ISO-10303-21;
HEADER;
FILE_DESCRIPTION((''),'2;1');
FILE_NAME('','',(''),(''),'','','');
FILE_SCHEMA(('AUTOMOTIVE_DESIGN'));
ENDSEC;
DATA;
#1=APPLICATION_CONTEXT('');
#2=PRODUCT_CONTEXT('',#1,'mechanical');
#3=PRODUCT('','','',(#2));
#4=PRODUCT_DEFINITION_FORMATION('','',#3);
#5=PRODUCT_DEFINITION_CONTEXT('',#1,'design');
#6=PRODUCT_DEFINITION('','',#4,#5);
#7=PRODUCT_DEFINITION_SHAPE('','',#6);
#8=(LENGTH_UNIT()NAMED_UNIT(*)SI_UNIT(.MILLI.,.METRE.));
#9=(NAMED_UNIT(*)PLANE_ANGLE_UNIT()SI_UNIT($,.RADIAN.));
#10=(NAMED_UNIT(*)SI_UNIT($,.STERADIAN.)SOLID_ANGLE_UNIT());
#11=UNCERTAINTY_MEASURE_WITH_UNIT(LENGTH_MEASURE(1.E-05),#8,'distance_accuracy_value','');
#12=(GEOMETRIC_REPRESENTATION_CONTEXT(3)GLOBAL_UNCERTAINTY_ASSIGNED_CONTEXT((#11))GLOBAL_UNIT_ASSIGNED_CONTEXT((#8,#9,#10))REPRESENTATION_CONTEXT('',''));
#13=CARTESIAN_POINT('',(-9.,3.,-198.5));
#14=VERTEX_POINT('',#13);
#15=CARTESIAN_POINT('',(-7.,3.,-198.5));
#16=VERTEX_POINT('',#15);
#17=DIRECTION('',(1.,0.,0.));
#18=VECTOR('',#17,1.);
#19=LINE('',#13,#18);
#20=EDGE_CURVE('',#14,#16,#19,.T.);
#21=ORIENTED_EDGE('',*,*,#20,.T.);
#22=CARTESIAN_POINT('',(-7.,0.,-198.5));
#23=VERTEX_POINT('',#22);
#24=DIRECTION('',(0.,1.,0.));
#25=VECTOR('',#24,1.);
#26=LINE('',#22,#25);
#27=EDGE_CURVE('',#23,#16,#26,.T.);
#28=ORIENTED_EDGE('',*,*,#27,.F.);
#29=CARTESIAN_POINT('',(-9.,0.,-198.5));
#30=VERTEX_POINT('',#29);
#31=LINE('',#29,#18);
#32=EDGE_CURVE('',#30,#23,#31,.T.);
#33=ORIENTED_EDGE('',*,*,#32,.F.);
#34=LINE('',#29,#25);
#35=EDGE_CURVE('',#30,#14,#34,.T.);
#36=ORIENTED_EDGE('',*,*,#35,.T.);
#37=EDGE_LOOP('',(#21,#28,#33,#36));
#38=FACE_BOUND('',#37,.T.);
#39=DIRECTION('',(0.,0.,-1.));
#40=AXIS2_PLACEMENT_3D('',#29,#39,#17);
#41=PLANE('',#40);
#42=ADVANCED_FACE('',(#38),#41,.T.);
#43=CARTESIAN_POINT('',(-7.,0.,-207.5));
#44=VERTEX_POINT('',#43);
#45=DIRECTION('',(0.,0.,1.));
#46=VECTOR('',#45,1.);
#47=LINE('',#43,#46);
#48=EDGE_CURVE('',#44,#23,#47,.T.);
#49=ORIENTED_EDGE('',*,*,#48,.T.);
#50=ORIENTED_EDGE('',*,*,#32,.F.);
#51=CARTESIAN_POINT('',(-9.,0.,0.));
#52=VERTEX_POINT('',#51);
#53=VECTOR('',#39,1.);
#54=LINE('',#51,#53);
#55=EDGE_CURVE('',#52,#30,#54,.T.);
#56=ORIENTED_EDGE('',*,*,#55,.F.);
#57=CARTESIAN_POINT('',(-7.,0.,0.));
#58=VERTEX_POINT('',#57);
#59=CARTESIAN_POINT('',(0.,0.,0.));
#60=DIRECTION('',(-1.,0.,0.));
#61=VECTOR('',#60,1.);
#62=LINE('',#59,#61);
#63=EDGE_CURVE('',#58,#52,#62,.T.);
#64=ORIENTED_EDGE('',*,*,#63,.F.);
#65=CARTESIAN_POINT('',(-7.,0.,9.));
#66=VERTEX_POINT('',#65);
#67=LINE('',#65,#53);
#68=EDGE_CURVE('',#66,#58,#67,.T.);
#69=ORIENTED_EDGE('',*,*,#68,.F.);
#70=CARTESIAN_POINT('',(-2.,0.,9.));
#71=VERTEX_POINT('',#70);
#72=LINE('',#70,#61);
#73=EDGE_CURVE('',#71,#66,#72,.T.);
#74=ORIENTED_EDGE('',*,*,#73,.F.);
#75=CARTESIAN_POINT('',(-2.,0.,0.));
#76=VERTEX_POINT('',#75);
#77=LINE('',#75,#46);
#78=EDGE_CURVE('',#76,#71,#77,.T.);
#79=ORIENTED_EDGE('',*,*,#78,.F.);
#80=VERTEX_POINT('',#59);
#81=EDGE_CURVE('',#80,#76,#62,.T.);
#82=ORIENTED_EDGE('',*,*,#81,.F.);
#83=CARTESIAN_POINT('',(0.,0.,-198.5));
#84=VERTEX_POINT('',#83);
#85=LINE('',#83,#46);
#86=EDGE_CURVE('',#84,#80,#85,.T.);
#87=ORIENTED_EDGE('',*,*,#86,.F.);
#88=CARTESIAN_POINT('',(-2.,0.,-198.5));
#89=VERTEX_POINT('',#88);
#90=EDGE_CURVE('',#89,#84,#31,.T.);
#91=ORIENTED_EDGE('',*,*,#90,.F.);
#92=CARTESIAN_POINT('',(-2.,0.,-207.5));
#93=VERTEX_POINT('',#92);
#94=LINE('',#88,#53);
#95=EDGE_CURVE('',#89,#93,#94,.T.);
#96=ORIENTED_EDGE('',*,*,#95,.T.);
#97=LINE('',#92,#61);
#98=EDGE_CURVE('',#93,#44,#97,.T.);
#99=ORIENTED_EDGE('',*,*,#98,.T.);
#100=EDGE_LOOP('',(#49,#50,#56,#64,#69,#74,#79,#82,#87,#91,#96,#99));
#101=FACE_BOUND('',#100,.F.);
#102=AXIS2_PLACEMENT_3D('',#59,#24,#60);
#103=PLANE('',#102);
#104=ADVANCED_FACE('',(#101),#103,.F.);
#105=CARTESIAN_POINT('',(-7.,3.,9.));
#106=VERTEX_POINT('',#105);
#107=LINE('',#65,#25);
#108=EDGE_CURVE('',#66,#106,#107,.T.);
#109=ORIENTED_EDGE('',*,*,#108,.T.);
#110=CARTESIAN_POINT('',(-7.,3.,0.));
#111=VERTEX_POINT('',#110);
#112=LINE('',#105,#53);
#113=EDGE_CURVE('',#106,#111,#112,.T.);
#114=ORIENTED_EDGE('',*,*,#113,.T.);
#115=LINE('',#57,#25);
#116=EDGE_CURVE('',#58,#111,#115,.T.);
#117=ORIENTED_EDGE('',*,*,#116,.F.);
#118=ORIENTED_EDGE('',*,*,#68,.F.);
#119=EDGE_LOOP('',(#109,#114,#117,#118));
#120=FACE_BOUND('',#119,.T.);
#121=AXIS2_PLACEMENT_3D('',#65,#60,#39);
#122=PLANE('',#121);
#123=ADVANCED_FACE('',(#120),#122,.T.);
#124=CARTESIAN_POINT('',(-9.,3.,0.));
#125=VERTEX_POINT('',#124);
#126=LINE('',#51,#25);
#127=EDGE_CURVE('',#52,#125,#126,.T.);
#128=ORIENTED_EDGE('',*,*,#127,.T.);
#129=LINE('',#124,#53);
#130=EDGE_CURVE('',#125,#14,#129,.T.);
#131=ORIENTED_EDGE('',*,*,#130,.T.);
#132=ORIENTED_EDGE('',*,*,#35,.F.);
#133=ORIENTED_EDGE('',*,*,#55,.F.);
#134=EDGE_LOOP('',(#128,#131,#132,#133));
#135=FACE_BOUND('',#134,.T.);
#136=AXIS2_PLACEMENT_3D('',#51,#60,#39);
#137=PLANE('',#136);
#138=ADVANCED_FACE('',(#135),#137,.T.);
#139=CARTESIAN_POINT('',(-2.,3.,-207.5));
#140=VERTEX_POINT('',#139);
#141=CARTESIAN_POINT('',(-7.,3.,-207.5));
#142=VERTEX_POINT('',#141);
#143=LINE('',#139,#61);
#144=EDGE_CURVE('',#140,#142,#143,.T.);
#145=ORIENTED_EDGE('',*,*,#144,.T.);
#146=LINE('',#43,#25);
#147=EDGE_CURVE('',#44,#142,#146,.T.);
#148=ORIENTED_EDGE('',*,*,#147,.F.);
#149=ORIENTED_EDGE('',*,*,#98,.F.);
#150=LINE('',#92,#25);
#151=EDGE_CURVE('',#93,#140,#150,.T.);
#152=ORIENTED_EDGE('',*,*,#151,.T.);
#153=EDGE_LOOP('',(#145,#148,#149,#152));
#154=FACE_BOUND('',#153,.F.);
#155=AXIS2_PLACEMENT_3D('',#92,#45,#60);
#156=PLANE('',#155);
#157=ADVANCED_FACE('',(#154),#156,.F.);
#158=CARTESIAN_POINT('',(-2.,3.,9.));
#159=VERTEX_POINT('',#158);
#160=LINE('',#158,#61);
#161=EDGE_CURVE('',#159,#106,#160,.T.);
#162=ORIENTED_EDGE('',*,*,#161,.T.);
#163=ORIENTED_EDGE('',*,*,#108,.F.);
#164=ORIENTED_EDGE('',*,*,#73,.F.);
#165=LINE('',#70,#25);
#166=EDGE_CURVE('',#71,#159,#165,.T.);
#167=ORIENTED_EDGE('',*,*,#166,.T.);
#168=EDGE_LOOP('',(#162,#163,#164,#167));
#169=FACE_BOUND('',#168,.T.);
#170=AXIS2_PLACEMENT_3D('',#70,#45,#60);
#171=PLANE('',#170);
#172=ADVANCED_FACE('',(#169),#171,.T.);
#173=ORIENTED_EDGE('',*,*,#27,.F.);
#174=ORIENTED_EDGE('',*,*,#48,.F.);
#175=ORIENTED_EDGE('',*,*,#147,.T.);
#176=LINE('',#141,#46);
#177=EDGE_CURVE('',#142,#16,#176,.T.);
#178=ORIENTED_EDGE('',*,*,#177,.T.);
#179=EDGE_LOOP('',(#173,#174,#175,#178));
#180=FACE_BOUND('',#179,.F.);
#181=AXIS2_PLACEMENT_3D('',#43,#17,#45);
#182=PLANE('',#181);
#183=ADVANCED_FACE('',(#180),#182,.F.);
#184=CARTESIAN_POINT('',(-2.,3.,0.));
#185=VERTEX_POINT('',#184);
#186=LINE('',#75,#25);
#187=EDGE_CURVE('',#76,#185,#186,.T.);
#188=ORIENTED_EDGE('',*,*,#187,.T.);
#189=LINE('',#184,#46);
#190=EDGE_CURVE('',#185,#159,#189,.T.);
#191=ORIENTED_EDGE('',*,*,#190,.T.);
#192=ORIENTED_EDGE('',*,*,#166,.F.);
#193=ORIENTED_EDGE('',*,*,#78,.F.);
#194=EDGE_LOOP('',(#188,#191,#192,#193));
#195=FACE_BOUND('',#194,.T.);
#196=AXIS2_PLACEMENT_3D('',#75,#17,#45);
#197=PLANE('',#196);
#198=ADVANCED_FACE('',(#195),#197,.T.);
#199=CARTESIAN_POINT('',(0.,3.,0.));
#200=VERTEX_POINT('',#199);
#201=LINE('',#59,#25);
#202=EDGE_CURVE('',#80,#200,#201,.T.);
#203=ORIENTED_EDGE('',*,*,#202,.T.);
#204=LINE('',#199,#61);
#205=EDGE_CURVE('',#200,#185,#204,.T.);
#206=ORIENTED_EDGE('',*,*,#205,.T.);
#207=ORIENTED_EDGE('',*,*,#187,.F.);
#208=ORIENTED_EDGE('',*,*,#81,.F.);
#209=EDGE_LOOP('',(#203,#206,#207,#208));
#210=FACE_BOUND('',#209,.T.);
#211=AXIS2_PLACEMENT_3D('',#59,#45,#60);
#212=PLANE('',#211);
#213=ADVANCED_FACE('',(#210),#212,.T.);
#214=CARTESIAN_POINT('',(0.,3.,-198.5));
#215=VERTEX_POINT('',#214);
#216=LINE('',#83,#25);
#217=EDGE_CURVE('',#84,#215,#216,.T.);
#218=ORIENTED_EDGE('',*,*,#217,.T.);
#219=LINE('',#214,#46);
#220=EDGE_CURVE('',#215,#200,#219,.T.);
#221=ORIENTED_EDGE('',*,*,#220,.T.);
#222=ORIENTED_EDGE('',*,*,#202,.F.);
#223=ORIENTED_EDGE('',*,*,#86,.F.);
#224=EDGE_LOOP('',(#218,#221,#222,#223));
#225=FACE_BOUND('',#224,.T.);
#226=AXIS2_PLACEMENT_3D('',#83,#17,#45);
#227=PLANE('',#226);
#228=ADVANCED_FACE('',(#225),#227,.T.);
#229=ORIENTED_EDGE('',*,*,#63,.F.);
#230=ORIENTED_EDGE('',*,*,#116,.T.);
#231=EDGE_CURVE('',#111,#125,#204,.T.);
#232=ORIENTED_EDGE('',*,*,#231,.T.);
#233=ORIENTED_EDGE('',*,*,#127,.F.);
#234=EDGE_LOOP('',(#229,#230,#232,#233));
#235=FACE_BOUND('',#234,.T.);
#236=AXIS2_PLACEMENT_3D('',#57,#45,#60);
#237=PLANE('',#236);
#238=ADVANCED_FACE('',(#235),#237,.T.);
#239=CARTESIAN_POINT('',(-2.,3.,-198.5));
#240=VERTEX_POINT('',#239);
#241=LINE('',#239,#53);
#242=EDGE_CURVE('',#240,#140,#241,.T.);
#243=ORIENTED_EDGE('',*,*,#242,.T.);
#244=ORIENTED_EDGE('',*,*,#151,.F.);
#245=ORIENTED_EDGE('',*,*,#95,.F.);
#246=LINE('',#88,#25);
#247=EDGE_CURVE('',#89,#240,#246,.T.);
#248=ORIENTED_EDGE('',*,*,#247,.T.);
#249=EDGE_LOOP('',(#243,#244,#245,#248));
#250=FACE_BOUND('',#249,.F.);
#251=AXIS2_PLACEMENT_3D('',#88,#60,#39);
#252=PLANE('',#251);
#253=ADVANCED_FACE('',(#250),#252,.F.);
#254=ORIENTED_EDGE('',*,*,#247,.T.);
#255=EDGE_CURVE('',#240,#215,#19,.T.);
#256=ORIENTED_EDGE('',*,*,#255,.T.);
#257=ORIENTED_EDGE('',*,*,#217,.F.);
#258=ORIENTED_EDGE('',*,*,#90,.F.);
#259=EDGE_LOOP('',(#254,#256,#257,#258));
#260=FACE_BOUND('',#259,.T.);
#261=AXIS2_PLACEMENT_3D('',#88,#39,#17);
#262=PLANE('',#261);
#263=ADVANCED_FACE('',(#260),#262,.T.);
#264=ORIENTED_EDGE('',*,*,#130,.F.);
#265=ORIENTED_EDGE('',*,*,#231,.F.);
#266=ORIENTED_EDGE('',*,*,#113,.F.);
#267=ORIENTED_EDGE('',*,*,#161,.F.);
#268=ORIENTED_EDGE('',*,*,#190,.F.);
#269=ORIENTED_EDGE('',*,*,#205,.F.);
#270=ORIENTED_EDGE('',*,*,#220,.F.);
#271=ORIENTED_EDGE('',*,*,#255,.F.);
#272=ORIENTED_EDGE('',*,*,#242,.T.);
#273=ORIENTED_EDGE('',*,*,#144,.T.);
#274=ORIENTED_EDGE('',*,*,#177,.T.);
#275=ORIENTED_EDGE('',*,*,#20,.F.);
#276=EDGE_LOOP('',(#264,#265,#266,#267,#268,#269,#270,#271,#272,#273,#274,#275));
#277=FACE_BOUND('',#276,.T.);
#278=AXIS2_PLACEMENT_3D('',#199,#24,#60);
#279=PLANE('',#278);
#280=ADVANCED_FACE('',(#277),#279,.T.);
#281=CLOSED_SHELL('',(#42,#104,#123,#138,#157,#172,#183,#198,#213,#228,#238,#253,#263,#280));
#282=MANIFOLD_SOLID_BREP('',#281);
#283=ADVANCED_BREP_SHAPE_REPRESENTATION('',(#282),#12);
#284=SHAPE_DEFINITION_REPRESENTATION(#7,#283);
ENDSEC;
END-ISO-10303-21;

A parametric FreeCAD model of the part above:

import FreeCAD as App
import Part
import Sketcher

V = App.Vector
Q = App.Units.Quantity

doc = App.newDocument("Part")
body = doc.addObject("PartDesign::Body", "Body")

# Sketch on XZ plane
sketch1 = body.newObject("Sketcher::SketchObject", "Sketch")
sketch1.AttachmentSupport = (doc.getObject("XZ_Plane"), [""])
sketch1.MapMode = "FlatFace"
sketch1.addGeometry([
    Part.LineSegment(V(-2, 0, 0), V(0, 0, 0)),  # 0
    Part.LineSegment(V(0, 0, 0), V(0, -198.5, 0)),  # 1
    Part.LineSegment(V(0, -198.5, 0), V(-2, -198.5, 0)),  # 2
    Part.LineSegment(V(-2, -198.5, 0), V(-2, -207.5, 0)),  # 3
    Part.LineSegment(V(-2, -207.5, 0), V(-7, -207.5, 0)),  # 4
    Part.LineSegment(V(-7, -207.5, 0), V(-7, -198.5, 0)),  # 5
    Part.LineSegment(V(-7, -198.5, 0), V(-9, -198.5, 0)),  # 6
    Part.LineSegment(V(-9, -198.5, 0), V(-9, 0, 0)),  # 7
    Part.LineSegment(V(-9, 0, 0), V(-7, 0, 0)),  # 8
    Part.LineSegment(V(-7, 0, 0), V(-7, 9, 0)),  # 9
    Part.LineSegment(V(-7, 9, 0), V(-2, 9, 0)),  # 10
    Part.LineSegment(V(-2, 9, 0), V(-2, 0, 0)),  # 11
], False)
sketch1.addConstraint([
    Sketcher.Constraint("Coincident", 0, 2, 1, 1),
    Sketcher.Constraint("Coincident", 1, 2, 2, 1),
    Sketcher.Constraint("Coincident", 2, 2, 3, 1),
    Sketcher.Constraint("Coincident", 3, 2, 4, 1),
    Sketcher.Constraint("Coincident", 4, 2, 5, 1),
    Sketcher.Constraint("Coincident", 5, 2, 6, 1),
    Sketcher.Constraint("Coincident", 6, 2, 7, 1),
    Sketcher.Constraint("Coincident", 7, 2, 8, 1),
    Sketcher.Constraint("Coincident", 8, 2, 9, 1),
    Sketcher.Constraint("Coincident", 9, 2, 10, 1),
    Sketcher.Constraint("Coincident", 10, 2, 11, 1),
    Sketcher.Constraint("Coincident", 11, 2, 0, 1),
    Sketcher.Constraint("Horizontal", 0),
    Sketcher.Constraint("Vertical", 1),
    Sketcher.Constraint("Horizontal", 2),
    Sketcher.Constraint("Vertical", 3),
    Sketcher.Constraint("Horizontal", 4),
    Sketcher.Constraint("Vertical", 5),
    Sketcher.Constraint("Horizontal", 6),
    Sketcher.Constraint("Vertical", 7),
    Sketcher.Constraint("Horizontal", 8),
    Sketcher.Constraint("Vertical", 9),
    Sketcher.Constraint("Horizontal", 10),
    Sketcher.Constraint("Vertical", 11),
    Sketcher.Constraint("Coincident", 0, 2, -1, 1),
    Sketcher.Constraint("PointOnObject", 7, 2, -1),
    Sketcher.Constraint("Horizontal", 2, 2, 5, 2),
    Sketcher.Constraint("Vertical", 5, 2, 8, 2),
    Sketcher.Constraint("Vertical", 3, 2, 10, 2),
    Sketcher.Constraint("Equal", 2, 6),
    Sketcher.Constraint("Equal", 5, 9),
    Sketcher.Constraint("DistanceX", 4, 2, 4, 1, Q("5 mm")),
    Sketcher.Constraint("DistanceY", 3, 2, 3, 1, Q("9 mm")),
    Sketcher.Constraint("DistanceY", 1, 2, 1, 1, Q("198.5 mm")),
    Sketcher.Constraint("DistanceX", 6, 2, -1, 1, Q("9 mm")),
])
pad1 = body.newObject("PartDesign::Pad", "Pad")
pad1.Profile = sketch1
pad1.Length = 3
pad1.Reversed = True

doc.recompute()
